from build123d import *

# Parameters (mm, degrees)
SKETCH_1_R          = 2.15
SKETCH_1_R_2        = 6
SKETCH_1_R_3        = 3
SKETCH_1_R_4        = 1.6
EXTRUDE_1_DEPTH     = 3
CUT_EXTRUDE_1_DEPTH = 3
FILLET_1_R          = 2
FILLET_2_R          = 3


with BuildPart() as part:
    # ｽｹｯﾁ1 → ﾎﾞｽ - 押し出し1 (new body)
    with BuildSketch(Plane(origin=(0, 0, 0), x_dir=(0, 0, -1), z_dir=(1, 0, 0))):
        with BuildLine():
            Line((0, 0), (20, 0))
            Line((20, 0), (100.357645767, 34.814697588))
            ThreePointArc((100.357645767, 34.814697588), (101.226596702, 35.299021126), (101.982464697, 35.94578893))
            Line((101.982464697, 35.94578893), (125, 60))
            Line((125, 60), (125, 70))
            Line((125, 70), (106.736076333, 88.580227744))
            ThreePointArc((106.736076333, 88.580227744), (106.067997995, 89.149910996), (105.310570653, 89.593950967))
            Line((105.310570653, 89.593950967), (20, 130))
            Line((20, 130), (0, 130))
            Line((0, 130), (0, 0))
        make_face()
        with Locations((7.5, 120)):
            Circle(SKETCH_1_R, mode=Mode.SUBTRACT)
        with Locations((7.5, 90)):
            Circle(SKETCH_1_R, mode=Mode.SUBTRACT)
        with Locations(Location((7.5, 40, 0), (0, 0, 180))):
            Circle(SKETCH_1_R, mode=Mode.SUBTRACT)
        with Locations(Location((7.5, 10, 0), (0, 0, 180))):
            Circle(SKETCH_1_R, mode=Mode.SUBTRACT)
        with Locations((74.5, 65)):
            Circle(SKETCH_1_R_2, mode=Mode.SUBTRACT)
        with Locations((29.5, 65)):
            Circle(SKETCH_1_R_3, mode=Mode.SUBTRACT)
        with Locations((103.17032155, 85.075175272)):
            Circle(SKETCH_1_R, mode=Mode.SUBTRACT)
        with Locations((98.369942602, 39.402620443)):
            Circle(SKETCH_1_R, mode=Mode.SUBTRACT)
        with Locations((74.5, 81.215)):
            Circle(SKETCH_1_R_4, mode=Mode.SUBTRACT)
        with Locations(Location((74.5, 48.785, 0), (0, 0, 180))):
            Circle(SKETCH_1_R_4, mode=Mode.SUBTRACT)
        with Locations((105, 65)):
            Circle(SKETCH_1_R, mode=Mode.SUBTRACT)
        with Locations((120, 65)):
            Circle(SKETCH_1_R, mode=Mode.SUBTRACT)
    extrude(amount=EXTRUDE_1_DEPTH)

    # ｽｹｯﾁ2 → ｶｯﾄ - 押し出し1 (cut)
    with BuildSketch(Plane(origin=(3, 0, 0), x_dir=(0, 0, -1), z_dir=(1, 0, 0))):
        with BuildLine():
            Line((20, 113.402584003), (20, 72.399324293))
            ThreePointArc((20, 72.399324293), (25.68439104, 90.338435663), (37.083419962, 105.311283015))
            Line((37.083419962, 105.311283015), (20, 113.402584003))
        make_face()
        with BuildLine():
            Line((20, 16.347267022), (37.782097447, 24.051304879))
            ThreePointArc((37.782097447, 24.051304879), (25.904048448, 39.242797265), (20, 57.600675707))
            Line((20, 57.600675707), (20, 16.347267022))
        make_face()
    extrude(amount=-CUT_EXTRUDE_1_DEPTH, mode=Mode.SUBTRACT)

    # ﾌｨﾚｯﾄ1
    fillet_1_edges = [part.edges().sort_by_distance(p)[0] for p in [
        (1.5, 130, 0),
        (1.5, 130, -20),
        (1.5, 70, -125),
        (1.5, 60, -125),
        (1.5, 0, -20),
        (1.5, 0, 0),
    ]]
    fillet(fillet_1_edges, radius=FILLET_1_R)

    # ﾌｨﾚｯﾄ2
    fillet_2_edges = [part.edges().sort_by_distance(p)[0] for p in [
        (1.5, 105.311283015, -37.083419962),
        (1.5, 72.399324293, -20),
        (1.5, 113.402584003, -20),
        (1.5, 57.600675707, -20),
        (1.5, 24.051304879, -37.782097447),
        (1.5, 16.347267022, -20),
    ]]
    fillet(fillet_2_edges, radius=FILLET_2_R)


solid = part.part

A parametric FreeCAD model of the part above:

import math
import FreeCAD as App
import Part
import Sketcher


def edges_at(feature, points):
    """Names of the edges that pass closest to the given points."""
    edges = feature.Shape.Edges
    near = lambda p: min(range(len(edges)), key=lambda i: edges[i].distToShape(Part.Vertex(*p))[0])
    return sorted({f"Edge{near(p) + 1}" for p in points})

doc = App.newDocument("Part")
body = doc.addObject("PartDesign::Body", "Body")

# Sketch on YZ plane
sketch1 = body.newObject("Sketcher::SketchObject", "Sketch")
sketch1.AttachmentSupport = (doc.getObject("YZ_Plane"), [""])
sketch1.MapMode = "FlatFace"
sketch1.addGeometry(Part.LineSegment(App.Vector(0, 0, 0), App.Vector(0, -20, 0)), False)
sketch1.addGeometry(Part.LineSegment(App.Vector(0, -20, 0), App.Vector(34.814698, -100.357646, 0)), False)
sketch1.addGeometry(Part.ArcOfCircle(Part.Circle(App.Vector(39.40262, -98.369943, 0), App.Vector(0, 0, 1), 5), math.radians(-156.575479), math.radians(-133.738361)), False)
sketch1.addGeometry(Part.LineSegment(App.Vector(35.945789, -101.982465, 0), App.Vector(60, -125, 0)), False)
sketch1.addGeometry(Part.LineSegment(App.Vector(60, -125, 0), App.Vector(70, -125, 0)), False)
sketch1.addGeometry(Part.LineSegment(App.Vector(70, -125, 0), App.Vector(88.580228, -106.736076, 0)), False)
sketch1.addGeometry(Part.ArcOfCircle(Part.Circle(App.Vector(85.075175, -103.170322, 0), App.Vector(0, 0, 1), 5), math.radians(-45.491868), math.radians(-25.34386)), False)
sketch1.addGeometry(Part.LineSegment(App.Vector(89.593951, -105.310571, 0), App.Vector(130, -20, 0)), False)
sketch1.addGeometry(Part.LineSegment(App.Vector(130, -20, 0), App.Vector(130, 0, 0)), False)
sketch1.addGeometry(Part.LineSegment(App.Vector(130, 0, 0), App.Vector(0, 0, 0)), False)
sketch1.addGeometry(Part.Circle(App.Vector(10, -7.5, 0), App.Vector(0, 0, 1), 2.15), False)
sketch1.addGeometry(Part.Circle(App.Vector(40, -7.5, 0), App.Vector(0, 0, 1), 2.15), False)
sketch1.addGeometry(Part.Circle(App.Vector(48.785, -74.5, 0), App.Vector(0, 0, 1), 1.6), False)
sketch1.addGeometry(Part.Circle(App.Vector(39.40262, -98.369943, 0), App.Vector(0, 0, 1), 2.15), False)
sketch1.addGeometry(Part.Circle(App.Vector(65, -29.5, 0), App.Vector(0, 0, 1), 3), False)
sketch1.addGeometry(Part.Circle(App.Vector(90, -7.5, 0), App.Vector(0, 0, 1), 2.15), False)
sketch1.addGeometry(Part.Circle(App.Vector(120, -7.5, 0), App.Vector(0, 0, 1), 2.15), False)
sketch1.addGeometry(Part.Circle(App.Vector(65, -74.5, 0), App.Vector(0, 0, 1), 6), False)
sketch1.addGeometry(Part.Circle(App.Vector(81.215, -74.5, 0), App.Vector(0, 0, 1), 1.6), False)
sketch1.addGeometry(Part.Circle(App.Vector(65, -105, 0), App.Vector(0, 0, 1), 2.15), False)
sketch1.addGeometry(Part.Circle(App.Vector(65, -120, 0), App.Vector(0, 0, 1), 2.15), False)
sketch1.addGeometry(Part.Circle(App.Vector(85.075175, -103.170322, 0), App.Vector(0, 0, 1), 2.15), False)
sketch1.addConstraint(Sketcher.Constraint("Coincident", 0, 2, 1, 1))
sketch1.addConstraint(Sketcher.Constraint("Tangent", 1, 2, 2, 1))
sketch1.addConstraint(Sketcher.Constraint("Tangent", 2, 2, 3, 1))
sketch1.addConstraint(Sketcher.Constraint("Coincident", 3, 2, 4, 1))
sketch1.addConstraint(Sketcher.Constraint("Coincident", 4, 2, 5, 1))
sketch1.addConstraint(Sketcher.Constraint("Tangent", 5, 2, 6, 1))
sketch1.addConstraint(Sketcher.Constraint("Tangent", 6, 2, 7, 1))
sketch1.addConstraint(Sketcher.Constraint("Coincident", 7, 2, 8, 1))
sketch1.addConstraint(Sketcher.Constraint("Coincident", 8, 2, 9, 1))
sketch1.addConstraint(Sketcher.Constraint("Coincident", 9, 2, 0, 1))
sketch1.addConstraint(Sketcher.Constraint("Vertical", 0))
sketch1.addConstraint(Sketcher.Constraint("Horizontal", 4))
sketch1.addConstraint(Sketcher.Constraint("Vertical", 8))
sketch1.addConstraint(Sketcher.Constraint("Horizontal", 9))
sketch1.addConstraint(Sketcher.Constraint("Coincident", 9, 2, -1, 1))
sketch1.addConstraint(Sketcher.Constraint("Coincident", 13, 3, 2, 3))
sketch1.addConstraint(Sketcher.Constraint("Coincident", 21, 3, 6, 3))
sketch1.addConstraint(Sketcher.Constraint("Equal", 2, 6))
sketch1.addConstraint(Sketcher.Constraint("Equal", 10, 11))
sketch1.addConstraint(Sketcher.Constraint("Equal", 11, 13))
sketch1.addConstraint(Sketcher.Constraint("Equal", 13, 15))
sketch1.addConstraint(Sketcher.Constraint("Equal", 15, 16))
sketch1.addConstraint(Sketcher.Constraint("Equal", 12, 18))
sketch1.addConstraint(Sketcher.Constraint("Equal", 16, 19))
sketch1.addConstraint(Sketcher.Constraint("Equal", 19, 20))
sketch1.addConstraint(Sketcher.Constraint("Equal", 20, 21))
sketch1.addConstraint(Sketcher.Constraint("Horizontal", 10, 3, 11, 3))
sketch1.addConstraint(Sketcher.Constraint("Horizontal", 11, 3, 15, 3))
sketch1.addConstraint(Sketcher.Constraint("Horizontal", 15, 3, 16, 3))
sketch1.addConstraint(Sketcher.Constraint("Horizontal", 12, 3, 17, 3))
sketch1.addConstraint(Sketcher.Constraint("Horizontal", 17, 3, 18, 3))
sketch1.addConstraint(Sketcher.Constraint("Horizontal", 0, 2, 7, 2))
sketch1.addConstraint(Sketcher.Constraint("Vertical", 14, 3, 17, 3))
sketch1.addConstraint(Sketcher.Constraint("Vertical", 17, 3, 19, 3))
sketch1.addConstraint(Sketcher.Constraint("Vertical", 19, 3, 20, 3))
sketch1.addConstraint(Sketcher.Constraint("Diameter", 14, 6.0))
sketch1.addConstraint(Sketcher.Constraint("Diameter", 17, 12.0))
sketch1.addConstraint(Sketcher.Constraint("Radius", 2, 5.0))
sketch1.addConstraint(Sketcher.Constraint("Diameter", 10, 4.3))
sketch1.addConstraint(Sketcher.Constraint("Diameter", 12, 3.2))
sketch1.addConstraint(Sketcher.Constraint("DistanceX", 4, 1, 4, 2, 10.0))
sketch1.addConstraint(Sketcher.Constraint("DistanceX", 9, 2, 9, 1, 130.0))
sketch1.addConstraint(Sketcher.Constraint("DistanceY", 0, 2, 0, 1, 20.0))
sketch1.addConstraint(Sketcher.Constraint("DistanceX", -1, 1, 10, 3, 10.0))
sketch1.addConstraint(Sketcher.Constraint("DistanceX", -1, 1, 11, 3, 40.0))
sketch1.addConstraint(Sketcher.Constraint("DistanceX", -1, 1, 14, 3, 65.0))
sketch1.addConstraint(Sketcher.Constraint("DistanceX", -1, 1, 15, 3, 90.0))
sketch1.addConstraint(Sketcher.Constraint("DistanceX", -1, 1, 16, 3, 120.0))
sketch1.addConstraint(Sketcher.Constraint("DistanceY", 19, 3, -1, 1, 105.0))
sketch1.addConstraint(Sketcher.Constraint("DistanceY", 20, 3, -1, 1, 120.0))
sketch1.addConstraint(Sketcher.Constraint("DistanceX", -1, 1, 3, 2, 60.0))
sketch1.addConstraint(Sketcher.Constraint("DistanceY", 3, 2, -1, 1, 125.0))
sketch1.addConstraint(Sketcher.Constraint("DistanceY", 12, 3, 11, 3, 67.0))
sketch1.addConstraint(Sketcher.Constraint("DistanceY", 14, 3, 11, 3, 22.0))
sketch1.addConstraint(Sketcher.Constraint("DistanceY", 10, 3, -1, 1, 7.5))
sketch1.addConstraint(Sketcher.Constraint("DistanceX", 12, 3, 18, 3, 32.43))
sketch1.addConstraint(Sketcher.Constraint("DistanceX", -1, 1, 12, 3, 48.785))
sketch1.addConstraint(Sketcher.Constraint("Distance", 5, 26.053709))
sketch1.addConstraint(Sketcher.Constraint("Distance", 7, 94.395669))
sketch1.addConstraint(Sketcher.Constraint("DistanceX", -1, 1, 2, 3, 39.40262))
sketch1.addConstraint(Sketcher.Constraint("DistanceX", -1, 1, 2, 2, 35.945789))
pad1 = body.newObject("PartDesign::Pad", "Pad")
pad1.Profile = sketch1
pad1.Length = 3

# Sketch on YZ plane
sketch2 = body.newObject("Sketcher::SketchObject", "Sketch001")
sketch2.AttachmentSupport = (doc.getObject("YZ_Plane"), [""])
sketch2.MapMode = "FlatFace"
sketch2.AttachmentOffset = App.Placement(App.Vector(0, 0, 3), App.Rotation())
sketch2.addGeometry(Part.LineSegment(App.Vector(113.402584, -20, 0), App.Vector(72.399324, -20, 0)), False)
sketch2.addGeometry(Part.ArcOfCircle(Part.Circle(App.Vector(65, -74.5, 0), App.Vector(0, 0, 1), 55), math.radians(42.867204), math.radians(82.268374)), False)
sketch2.addGeometry(Part.LineSegment(App.Vector(105.311283, -37.08342, 0), App.Vector(113.402584, -20, 0)), False)
sketch2.addGeometry(Part.LineSegment(App.Vector(16.347267, -20, 0), App.Vector(24.051305, -37.782097, 0)), False)
sketch2.addGeometry(Part.ArcOfCircle(Part.Circle(App.Vector(65, -74.5, 0), App.Vector(0, 0, 1), 55), math.radians(97.731626), math.radians(138.118036)), False)
sketch2.addGeometry(Part.LineSegment(App.Vector(57.600676, -20, 0), App.Vector(16.347267, -20, 0)), False)
sketch2.addConstraint(Sketcher.Constraint("Coincident", 0, 2, 1, 2))
sketch2.addConstraint(Sketcher.Constraint("Coincident", 1, 1, 2, 1))
sketch2.addConstraint(Sketcher.Constraint("Coincident", 2, 2, 0, 1))
sketch2.addConstraint(Sketcher.Constraint("Coincident", 3, 2, 4, 2))
sketch2.addConstraint(Sketcher.Constraint("Coincident", 4, 1, 5, 1))
sketch2.addConstraint(Sketcher.Constraint("Coincident", 5, 2, 3, 1))
sketch2.addConstraint(Sketcher.Constraint("Horizontal", 0))
sketch2.addConstraint(Sketcher.Constraint("Horizontal", 5))
sketch2.addConstraint(Sketcher.Constraint("Coincident", 4, 3, 1, 3))
sketch2.addConstraint(Sketcher.Constraint("Equal", 1, 4))
sketch2.addConstraint(Sketcher.Constraint("Horizontal", 2, 2, 4, 1))
sketch2.addConstraint(Sketcher.Constraint("Radius", 1, 55.0))
sketch2.addConstraint(Sketcher.Constraint("DistanceX", -1, 1, 1, 3, 65.0))
sketch2.addConstraint(Sketcher.Constraint("DistanceY", 0, 2, -1, 1, 20.0))
sketch2.addConstraint(Sketcher.Constraint("DistanceY", 1, 3, -1, 1, 74.5))
sketch2.addConstraint(Sketcher.Constraint("DistanceX", 0, 2, 0, 1, 41.00326))
sketch2.addConstraint(Sketcher.Constraint("DistanceX", 5, 2, 5, 1, 41.253409))
sketch2.addConstraint(Sketcher.Constraint("DistanceX", 1, 1, 2, 2, 8.091301))
sketch2.addConstraint(Sketcher.Constraint("DistanceX", 3, 2, 0, 2, 48.348019))
pocket1 = body.newObject("PartDesign::Pocket", "Pocket")
pocket1.Profile = sketch2
pocket1.Length = 3
doc.recompute()

fillet = body.newObject("PartDesign::Fillet", "Fillet")
fillet.Base = (pocket1, edges_at(pocket1, [
    (1.5, 130, 0),
    (1.5, 130, -20),
    (1.5, 70, -125),
    (1.5, 60, -125),
    (1.5, 0, -20),
    (1.5, 0, 0),
]))
fillet.Radius = 2
doc.recompute()

fillet2 = body.newObject("PartDesign::Fillet", "Fillet001")
fillet2.Base = (fillet, edges_at(fillet, [
    (1.5, 105.311, -37.083),
    (1.5, 72.399, -20),
    (1.5, 113.403, -20),
    (1.5, 57.601, -20),
    (1.5, 24.051, -37.782),
    (1.5, 16.347, -20),
]))
fillet2.Radius = 3

doc.recompute()
